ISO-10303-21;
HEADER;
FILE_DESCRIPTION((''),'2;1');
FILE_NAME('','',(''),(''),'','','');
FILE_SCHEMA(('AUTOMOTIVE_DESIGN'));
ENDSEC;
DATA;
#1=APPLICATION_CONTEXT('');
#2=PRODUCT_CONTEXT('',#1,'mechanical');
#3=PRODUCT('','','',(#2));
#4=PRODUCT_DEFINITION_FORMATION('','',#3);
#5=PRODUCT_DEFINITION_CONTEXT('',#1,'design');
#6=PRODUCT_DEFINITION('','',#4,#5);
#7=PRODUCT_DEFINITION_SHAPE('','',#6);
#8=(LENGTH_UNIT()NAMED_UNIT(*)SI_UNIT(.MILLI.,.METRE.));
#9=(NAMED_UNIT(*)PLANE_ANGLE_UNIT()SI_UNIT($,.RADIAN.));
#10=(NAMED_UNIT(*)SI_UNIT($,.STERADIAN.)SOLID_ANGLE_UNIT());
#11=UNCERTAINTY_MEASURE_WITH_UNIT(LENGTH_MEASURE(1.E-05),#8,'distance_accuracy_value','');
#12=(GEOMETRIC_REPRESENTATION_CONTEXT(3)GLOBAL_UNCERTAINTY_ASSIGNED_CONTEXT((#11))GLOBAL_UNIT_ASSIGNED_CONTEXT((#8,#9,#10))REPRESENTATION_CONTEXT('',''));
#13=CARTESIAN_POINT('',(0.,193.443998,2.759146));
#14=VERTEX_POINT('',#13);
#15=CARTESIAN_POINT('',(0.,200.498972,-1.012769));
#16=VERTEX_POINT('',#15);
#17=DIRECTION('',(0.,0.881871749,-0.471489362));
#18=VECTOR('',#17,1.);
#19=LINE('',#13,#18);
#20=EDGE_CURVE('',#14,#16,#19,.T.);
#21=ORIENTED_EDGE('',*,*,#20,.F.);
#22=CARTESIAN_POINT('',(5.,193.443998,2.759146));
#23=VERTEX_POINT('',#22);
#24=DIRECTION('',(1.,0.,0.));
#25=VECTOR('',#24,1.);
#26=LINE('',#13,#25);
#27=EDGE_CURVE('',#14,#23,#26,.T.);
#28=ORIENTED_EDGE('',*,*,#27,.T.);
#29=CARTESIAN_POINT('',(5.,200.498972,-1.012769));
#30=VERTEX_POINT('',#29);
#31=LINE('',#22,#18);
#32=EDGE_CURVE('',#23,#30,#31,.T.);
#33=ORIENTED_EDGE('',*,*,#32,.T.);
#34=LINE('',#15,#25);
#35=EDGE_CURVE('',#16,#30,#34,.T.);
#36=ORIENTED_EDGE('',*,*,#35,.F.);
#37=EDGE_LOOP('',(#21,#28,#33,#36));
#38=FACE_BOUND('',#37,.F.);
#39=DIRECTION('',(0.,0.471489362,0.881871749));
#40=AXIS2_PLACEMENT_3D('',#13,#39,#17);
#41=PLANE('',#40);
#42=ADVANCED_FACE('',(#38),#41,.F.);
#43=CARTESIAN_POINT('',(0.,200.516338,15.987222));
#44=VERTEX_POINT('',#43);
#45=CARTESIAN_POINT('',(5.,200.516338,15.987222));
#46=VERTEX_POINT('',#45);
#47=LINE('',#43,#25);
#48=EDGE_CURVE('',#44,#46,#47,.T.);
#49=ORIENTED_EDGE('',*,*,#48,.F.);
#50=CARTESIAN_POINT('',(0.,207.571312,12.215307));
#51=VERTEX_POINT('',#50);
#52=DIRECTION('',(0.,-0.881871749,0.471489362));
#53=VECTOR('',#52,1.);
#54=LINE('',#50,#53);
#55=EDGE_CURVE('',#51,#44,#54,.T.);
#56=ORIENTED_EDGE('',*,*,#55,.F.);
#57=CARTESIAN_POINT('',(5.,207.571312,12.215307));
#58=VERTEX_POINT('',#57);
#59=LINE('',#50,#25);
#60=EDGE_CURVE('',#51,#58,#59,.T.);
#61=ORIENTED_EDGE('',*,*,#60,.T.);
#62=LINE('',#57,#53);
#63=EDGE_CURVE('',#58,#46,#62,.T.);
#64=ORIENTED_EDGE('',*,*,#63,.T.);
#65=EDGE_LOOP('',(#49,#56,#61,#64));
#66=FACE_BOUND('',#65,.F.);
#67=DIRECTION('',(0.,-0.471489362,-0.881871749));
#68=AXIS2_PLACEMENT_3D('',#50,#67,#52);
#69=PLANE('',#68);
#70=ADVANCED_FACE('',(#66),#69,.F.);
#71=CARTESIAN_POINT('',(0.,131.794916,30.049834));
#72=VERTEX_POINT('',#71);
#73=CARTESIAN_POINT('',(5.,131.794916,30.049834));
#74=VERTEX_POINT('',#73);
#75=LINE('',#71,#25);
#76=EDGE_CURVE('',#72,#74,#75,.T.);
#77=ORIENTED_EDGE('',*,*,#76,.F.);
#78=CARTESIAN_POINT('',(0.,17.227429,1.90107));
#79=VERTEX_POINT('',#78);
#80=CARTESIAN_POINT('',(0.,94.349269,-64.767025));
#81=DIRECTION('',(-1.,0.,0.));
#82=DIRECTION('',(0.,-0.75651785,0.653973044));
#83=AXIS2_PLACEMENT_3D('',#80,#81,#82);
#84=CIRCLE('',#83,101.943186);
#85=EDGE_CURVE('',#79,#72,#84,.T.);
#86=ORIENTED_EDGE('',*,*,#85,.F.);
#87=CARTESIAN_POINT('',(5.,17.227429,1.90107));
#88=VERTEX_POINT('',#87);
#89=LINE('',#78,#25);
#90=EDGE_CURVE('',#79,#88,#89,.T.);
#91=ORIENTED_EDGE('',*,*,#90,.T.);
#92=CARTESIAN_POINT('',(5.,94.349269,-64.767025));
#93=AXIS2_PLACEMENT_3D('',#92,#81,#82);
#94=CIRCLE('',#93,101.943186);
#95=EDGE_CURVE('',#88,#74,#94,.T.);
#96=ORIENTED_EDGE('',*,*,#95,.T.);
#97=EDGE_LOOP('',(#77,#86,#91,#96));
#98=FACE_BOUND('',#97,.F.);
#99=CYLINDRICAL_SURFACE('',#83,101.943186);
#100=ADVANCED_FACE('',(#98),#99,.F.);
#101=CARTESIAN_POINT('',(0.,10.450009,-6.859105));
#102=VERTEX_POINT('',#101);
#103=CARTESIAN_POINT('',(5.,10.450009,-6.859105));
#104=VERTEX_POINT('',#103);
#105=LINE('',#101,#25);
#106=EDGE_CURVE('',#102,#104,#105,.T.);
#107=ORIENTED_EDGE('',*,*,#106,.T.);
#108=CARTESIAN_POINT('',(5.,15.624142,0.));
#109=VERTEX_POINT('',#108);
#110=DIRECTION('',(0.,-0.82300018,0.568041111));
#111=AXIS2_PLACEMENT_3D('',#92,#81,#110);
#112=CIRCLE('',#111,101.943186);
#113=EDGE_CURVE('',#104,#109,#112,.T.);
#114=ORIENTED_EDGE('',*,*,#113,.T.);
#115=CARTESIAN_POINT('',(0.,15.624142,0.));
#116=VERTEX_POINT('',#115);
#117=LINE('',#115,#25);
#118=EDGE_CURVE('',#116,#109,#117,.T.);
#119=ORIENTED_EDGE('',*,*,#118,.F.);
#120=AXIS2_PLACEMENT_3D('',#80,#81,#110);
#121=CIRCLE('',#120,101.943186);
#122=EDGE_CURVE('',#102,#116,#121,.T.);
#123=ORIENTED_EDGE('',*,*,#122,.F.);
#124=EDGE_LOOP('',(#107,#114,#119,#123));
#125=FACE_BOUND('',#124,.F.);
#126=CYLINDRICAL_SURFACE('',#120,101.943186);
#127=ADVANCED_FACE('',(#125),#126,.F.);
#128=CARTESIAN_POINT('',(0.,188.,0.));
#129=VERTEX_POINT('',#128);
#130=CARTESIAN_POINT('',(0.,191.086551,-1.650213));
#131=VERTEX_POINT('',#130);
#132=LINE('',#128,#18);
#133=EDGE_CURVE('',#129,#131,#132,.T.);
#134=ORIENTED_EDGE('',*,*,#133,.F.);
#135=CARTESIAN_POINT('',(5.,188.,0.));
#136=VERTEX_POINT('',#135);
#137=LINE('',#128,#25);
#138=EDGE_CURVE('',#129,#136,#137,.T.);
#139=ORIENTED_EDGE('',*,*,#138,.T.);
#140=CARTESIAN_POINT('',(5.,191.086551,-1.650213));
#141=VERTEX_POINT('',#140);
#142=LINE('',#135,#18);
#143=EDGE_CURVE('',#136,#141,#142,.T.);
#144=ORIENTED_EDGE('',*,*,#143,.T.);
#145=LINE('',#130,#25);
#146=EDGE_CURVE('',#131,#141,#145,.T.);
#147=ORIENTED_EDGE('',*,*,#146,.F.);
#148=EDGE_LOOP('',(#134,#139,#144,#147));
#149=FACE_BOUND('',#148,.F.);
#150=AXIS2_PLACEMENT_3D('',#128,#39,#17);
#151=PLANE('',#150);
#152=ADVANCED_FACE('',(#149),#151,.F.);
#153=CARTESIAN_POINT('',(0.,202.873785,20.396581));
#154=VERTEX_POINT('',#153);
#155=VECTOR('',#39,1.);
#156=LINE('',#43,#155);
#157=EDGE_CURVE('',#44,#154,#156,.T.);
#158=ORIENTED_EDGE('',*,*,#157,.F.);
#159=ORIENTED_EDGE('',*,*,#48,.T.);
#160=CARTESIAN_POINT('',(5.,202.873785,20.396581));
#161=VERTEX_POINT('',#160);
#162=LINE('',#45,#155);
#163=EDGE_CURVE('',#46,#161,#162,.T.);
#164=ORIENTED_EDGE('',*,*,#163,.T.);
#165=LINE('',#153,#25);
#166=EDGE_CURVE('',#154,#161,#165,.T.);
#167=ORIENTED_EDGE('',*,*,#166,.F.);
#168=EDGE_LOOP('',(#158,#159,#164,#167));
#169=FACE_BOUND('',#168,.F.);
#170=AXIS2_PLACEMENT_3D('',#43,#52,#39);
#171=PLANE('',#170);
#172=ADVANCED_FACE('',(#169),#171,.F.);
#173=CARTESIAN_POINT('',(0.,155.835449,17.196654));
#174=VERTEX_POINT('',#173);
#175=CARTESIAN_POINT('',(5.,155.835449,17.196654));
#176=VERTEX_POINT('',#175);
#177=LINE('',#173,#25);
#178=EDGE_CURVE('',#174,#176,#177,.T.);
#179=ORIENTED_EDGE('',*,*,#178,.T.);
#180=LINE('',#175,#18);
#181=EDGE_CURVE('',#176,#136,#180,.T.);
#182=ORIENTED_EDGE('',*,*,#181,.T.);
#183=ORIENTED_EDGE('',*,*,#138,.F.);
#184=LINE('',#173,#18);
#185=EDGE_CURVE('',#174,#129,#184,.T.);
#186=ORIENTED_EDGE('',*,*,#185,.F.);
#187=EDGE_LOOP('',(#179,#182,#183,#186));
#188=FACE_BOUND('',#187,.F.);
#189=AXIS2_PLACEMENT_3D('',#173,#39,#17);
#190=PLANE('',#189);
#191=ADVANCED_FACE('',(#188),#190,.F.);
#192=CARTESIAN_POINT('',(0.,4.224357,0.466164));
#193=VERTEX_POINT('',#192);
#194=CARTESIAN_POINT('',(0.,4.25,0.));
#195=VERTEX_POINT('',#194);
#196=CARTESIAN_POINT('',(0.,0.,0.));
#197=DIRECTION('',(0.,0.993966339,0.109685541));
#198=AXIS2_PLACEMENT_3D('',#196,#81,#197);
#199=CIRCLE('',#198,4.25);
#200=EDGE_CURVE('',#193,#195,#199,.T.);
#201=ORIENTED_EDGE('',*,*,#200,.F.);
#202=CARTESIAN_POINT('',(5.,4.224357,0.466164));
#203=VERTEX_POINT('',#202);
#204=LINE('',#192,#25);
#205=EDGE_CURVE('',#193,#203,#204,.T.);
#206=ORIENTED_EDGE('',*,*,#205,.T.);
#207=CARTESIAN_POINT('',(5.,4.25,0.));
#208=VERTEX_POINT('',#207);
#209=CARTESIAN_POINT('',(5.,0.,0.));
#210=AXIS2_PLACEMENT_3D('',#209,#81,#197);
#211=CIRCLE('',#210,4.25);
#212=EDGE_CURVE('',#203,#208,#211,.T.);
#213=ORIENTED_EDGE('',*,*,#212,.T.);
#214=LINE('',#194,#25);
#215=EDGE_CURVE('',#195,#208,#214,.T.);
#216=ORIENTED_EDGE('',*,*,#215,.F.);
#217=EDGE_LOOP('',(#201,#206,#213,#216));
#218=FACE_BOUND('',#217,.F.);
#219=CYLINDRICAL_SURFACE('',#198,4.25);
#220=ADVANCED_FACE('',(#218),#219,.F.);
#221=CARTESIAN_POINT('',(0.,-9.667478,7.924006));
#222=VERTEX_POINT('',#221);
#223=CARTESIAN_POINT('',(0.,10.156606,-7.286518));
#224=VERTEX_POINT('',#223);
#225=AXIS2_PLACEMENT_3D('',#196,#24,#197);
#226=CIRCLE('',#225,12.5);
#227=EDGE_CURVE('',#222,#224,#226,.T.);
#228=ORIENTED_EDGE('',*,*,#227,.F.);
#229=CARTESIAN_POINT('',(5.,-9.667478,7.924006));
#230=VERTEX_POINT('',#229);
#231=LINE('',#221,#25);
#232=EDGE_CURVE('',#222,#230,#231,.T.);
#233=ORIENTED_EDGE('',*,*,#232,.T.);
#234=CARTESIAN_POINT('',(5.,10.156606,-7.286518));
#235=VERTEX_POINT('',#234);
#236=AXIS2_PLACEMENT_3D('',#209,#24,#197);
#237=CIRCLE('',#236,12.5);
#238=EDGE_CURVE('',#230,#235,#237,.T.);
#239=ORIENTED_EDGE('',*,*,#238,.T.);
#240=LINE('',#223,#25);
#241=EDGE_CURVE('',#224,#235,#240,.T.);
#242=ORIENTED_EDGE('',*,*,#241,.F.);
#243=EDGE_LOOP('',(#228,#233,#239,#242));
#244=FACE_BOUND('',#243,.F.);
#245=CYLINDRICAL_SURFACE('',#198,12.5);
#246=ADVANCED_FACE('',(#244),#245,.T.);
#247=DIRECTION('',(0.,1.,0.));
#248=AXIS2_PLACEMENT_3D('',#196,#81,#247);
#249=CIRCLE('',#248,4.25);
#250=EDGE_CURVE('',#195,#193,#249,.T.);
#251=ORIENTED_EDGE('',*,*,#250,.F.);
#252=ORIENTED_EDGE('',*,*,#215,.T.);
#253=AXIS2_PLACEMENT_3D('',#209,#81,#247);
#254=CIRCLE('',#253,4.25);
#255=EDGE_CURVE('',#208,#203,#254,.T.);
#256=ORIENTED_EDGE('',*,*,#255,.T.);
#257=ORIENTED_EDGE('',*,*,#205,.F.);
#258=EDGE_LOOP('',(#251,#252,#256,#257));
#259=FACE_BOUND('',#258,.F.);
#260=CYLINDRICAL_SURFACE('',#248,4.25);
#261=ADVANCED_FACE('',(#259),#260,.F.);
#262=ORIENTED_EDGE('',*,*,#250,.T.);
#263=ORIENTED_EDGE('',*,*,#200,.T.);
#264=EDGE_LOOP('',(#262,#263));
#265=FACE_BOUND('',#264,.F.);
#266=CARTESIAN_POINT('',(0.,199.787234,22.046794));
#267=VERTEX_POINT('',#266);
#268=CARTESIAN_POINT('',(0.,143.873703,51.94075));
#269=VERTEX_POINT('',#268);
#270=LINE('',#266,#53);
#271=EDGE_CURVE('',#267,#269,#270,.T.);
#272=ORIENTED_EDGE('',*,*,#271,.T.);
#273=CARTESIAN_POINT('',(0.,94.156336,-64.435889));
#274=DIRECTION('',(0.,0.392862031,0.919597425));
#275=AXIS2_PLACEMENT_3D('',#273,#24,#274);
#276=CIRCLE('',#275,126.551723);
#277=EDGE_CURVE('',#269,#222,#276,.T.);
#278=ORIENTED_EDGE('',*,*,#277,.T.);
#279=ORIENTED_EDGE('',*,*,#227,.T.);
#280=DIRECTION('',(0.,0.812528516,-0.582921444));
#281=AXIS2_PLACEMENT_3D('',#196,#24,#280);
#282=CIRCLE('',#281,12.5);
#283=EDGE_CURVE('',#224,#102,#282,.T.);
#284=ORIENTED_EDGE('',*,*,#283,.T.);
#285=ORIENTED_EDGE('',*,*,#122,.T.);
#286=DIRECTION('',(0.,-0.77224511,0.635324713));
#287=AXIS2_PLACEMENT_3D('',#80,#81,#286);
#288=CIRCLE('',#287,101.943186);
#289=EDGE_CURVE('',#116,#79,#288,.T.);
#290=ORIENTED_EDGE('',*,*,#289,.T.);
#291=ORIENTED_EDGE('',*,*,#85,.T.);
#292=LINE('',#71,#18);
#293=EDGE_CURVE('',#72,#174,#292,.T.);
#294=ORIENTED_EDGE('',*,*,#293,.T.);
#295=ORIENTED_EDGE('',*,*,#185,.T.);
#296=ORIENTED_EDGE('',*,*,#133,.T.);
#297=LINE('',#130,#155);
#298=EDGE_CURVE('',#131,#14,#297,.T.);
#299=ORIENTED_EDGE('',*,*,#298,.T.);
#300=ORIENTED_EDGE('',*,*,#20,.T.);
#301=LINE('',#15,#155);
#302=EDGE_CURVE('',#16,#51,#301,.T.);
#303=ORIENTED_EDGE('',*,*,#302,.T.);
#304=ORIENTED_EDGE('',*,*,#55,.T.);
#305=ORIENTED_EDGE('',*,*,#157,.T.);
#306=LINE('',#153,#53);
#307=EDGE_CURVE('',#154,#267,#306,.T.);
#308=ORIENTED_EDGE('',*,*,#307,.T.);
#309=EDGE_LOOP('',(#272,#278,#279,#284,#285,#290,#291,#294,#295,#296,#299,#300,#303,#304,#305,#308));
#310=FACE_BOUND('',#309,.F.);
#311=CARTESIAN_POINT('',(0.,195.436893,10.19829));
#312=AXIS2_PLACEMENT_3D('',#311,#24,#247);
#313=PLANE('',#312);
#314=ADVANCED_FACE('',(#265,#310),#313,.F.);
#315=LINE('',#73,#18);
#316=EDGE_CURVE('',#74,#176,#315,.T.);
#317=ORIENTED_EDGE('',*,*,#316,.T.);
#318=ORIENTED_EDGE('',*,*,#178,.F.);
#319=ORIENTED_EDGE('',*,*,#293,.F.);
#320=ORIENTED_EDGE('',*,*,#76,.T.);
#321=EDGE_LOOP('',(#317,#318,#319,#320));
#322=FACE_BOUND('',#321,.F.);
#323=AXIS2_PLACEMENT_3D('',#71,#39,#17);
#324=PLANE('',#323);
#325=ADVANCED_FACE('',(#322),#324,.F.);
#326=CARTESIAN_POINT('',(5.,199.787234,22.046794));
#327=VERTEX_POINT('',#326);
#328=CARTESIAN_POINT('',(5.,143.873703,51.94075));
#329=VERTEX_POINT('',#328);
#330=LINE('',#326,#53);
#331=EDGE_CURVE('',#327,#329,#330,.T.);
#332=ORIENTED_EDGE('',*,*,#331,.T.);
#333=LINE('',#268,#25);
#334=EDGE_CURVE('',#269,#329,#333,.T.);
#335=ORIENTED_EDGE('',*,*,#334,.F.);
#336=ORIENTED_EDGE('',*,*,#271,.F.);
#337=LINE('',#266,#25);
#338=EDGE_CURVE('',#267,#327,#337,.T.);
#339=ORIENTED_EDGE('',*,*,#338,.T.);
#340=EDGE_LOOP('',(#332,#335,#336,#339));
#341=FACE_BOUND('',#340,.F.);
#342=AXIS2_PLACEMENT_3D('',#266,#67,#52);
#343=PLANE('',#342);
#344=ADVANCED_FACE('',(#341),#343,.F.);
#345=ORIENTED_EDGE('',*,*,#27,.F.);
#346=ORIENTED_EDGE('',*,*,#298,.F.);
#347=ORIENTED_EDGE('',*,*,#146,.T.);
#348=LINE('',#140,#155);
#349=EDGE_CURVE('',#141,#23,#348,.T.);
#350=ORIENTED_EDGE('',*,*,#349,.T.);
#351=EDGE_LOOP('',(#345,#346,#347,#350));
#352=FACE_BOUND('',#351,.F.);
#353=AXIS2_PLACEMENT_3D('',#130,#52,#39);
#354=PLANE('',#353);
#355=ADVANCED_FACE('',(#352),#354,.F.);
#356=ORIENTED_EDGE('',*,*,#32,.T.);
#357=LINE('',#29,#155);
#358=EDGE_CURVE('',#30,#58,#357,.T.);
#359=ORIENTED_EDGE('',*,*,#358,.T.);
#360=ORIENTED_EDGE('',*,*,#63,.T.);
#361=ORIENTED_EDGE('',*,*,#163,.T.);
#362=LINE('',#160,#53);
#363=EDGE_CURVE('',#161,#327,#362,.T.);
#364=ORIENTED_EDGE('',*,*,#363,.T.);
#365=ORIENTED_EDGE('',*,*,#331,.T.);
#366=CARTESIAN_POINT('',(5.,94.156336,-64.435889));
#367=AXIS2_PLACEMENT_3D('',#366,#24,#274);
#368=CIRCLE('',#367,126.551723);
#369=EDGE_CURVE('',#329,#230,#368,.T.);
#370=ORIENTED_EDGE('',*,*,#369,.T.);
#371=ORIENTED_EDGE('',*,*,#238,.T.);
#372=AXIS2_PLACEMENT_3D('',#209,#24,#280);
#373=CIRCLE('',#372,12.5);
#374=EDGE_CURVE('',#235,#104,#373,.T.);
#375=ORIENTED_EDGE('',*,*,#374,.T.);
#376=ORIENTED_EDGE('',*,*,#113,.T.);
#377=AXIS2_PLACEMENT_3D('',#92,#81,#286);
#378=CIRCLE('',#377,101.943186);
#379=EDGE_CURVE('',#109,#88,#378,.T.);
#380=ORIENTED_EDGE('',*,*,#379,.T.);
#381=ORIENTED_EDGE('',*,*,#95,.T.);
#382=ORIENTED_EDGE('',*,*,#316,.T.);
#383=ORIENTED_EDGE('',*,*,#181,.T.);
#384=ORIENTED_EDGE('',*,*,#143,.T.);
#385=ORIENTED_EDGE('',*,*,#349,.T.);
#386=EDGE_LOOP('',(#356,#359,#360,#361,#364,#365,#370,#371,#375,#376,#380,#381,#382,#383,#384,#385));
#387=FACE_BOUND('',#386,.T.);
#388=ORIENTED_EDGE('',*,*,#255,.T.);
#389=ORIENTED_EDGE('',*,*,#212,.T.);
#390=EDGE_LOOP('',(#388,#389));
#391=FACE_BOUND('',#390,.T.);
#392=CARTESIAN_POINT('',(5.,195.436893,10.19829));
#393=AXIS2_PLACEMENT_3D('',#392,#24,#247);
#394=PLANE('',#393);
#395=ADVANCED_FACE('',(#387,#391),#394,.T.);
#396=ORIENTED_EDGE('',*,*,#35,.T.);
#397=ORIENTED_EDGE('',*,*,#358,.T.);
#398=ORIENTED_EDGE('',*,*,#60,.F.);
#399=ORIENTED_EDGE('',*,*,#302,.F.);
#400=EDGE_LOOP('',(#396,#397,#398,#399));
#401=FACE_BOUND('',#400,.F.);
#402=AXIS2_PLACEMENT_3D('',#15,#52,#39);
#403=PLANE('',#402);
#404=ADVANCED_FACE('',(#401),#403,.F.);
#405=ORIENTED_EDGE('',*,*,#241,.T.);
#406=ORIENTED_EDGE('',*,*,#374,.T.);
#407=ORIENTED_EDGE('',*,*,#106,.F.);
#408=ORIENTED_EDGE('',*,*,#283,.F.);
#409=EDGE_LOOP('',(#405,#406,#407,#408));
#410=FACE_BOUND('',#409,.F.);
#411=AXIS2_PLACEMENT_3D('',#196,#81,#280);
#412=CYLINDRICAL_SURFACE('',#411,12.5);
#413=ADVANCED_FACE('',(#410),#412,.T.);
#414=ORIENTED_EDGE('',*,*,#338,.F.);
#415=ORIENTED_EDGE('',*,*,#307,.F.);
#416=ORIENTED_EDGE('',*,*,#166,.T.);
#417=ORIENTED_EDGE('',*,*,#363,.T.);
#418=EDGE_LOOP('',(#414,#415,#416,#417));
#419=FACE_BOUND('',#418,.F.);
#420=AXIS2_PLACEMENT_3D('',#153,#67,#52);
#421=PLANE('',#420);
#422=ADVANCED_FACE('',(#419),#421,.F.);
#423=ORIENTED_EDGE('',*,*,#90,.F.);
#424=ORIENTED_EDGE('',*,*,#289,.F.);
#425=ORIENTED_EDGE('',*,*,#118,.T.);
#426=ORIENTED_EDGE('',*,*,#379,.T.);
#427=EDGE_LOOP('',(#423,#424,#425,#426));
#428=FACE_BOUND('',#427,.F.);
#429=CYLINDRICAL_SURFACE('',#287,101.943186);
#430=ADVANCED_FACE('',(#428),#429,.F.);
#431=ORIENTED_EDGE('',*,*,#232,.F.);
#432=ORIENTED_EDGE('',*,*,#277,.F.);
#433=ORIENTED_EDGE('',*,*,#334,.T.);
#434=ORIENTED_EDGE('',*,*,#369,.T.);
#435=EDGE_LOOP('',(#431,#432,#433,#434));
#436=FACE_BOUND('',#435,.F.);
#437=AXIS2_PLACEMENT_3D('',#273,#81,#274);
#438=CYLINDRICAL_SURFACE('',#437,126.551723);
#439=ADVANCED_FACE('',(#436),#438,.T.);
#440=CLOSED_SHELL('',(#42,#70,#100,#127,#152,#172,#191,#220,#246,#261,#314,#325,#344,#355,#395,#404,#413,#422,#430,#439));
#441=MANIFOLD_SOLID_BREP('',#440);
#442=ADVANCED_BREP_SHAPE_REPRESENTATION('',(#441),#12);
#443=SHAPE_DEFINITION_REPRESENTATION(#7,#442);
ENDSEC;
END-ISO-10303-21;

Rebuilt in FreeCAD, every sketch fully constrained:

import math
import FreeCAD as App
import Part
import Sketcher

V = App.Vector

doc = App.newDocument("Part")
body = doc.addObject("PartDesign::Body", "Body")

# Sketch on YZ plane
sketch1 = doc.addObject("Sketcher::SketchObject", "Sketch")
body.addObject(sketch1)
sketch1.AttachmentSupport = (doc.YZ_Plane, [""])
sketch1.MapMode = "FlatFace"
sketch1.addGeometry([
    Part.LineSegment(V(193.443998, 2.759146, 0), V(200.498972, -1.012769, 0)),  # 0
    Part.LineSegment(V(200.498972, -1.012769, 0), V(207.571312, 12.215307, 0)),  # 1
    Part.LineSegment(V(207.571312, 12.215307, 0), V(200.516338, 15.987222, 0)),  # 2
    Part.LineSegment(V(200.516338, 15.987222, 0), V(202.873785, 20.396581, 0)),  # 3
    Part.LineSegment(V(202.873785, 20.396581, 0), V(199.787234, 22.046794, 0)),  # 4
    Part.LineSegment(V(199.787234, 22.046794, 0), V(143.873703, 51.94075, 0)),  # 5
    Part.ArcOfCircle(Part.Circle(V(94.156336, -64.435889, 0), V(0, 0, 1), 126.551723), math.radians(66.867299), math.radians(145.125473)),  # 6
    Part.ArcOfCircle(Part.Circle(V(0, 0, 0), V(0, 0, 1), 12.5), math.radians(140.660034), math.radians(324.343715)),  # 7
    Part.ArcOfCircle(Part.Circle(V(0, 0, 0), V(0, 0, 1), 12.5), math.radians(-35.656285), math.radians(-33.279818)),  # 8
    Part.ArcOfCircle(Part.Circle(V(94.349269, -64.767025, 0), V(0, 0, 1), 101.943186), math.radians(140.555928), math.radians(145.386261)),  # 9
    Part.ArcOfCircle(Part.Circle(V(94.349269, -64.767025, 0), V(0, 0, 1), 101.943186), math.radians(139.158173), math.radians(140.555928)),  # 10
    Part.ArcOfCircle(Part.Circle(V(94.349269, -64.767025, 0), V(0, 0, 1), 101.943186), math.radians(68.449646), math.radians(139.158173)),  # 11
    Part.LineSegment(V(131.794916, 30.049834, 0), V(155.835449, 17.196654, 0)),  # 12
    Part.LineSegment(V(155.835449, 17.196654, 0), V(188, 0, 0)),  # 13
    Part.LineSegment(V(188, 0, 0), V(191.086551, -1.650213, 0)),  # 14
    Part.LineSegment(V(191.086551, -1.650213, 0), V(193.443998, 2.759146, 0)),  # 15
    Part.ArcOfCircle(Part.Circle(V(0, 0, 0), V(0, 0, 1), 4.25), math.radians(6.297189), math.radians(360)),  # 16
    Part.ArcOfCircle(Part.Circle(V(0, 0, 0), V(0, 0, 1), 4.25), math.radians(0), math.radians(6.297189)),  # 17
], False)
sketch1.addConstraint([
    Sketcher.Constraint("Coincident", 0, 2, 1, 1),
    Sketcher.Constraint("Coincident", 1, 2, 2, 1),
    Sketcher.Constraint("Coincident", 2, 2, 3, 1),
    Sketcher.Constraint("Coincident", 3, 2, 4, 1),
    Sketcher.Constraint("Coincident", 4, 2, 5, 1),
    Sketcher.Constraint("Coincident", 5, 2, 6, 1),
    Sketcher.Constraint("Coincident", 6, 2, 7, 1),
    Sketcher.Constraint("Tangent", 7, 2, 8, 1),
    Sketcher.Constraint("Coincident", 8, 2, 9, 2),
    Sketcher.Constraint("Tangent", 9, 1, 10, 2),
    Sketcher.Constraint("Tangent", 10, 1, 11, 2),
    Sketcher.Constraint("Coincident", 11, 1, 12, 1),
    Sketcher.Constraint("Coincident", 12, 2, 13, 1),
    Sketcher.Constraint("Coincident", 13, 2, 14, 1),
    Sketcher.Constraint("Coincident", 14, 2, 15, 1),
    Sketcher.Constraint("Coincident", 15, 2, 0, 1),
    Sketcher.Constraint("Tangent", 16, 1, 17, 2),
    Sketcher.Constraint("Coincident", 17, 1, 16, 2),
    Sketcher.Constraint("Coincident", 7, 3, -1, 1),
    Sketcher.Constraint("Coincident", 16, 3, -1, 1),
    Sketcher.Constraint("Coincident", 11, 3, 9, 3),
    Sketcher.Constraint("Equal", 7, 8),
    Sketcher.Constraint("PointOnObject", 9, 1, -1),
    Sketcher.Constraint("PointOnObject", 13, 2, -1),
    Sketcher.Constraint("PointOnObject", 17, 1, -1),
    Sketcher.Constraint("Perpendicular", 0, 1),
    Sketcher.Constraint("Perpendicular", 1, 2),
    Sketcher.Constraint("Perpendicular", 2, 3),
    Sketcher.Constraint("Perpendicular", 3, 4),
    Sketcher.Constraint("Parallel", 4, 5),
    Sketcher.Constraint("Parallel", 5, 12),
    Sketcher.Constraint("Parallel", 12, 13),
    Sketcher.Constraint("Parallel", 13, 14),
    Sketcher.Constraint("Perpendicular", 14, 15),
    Sketcher.Constraint("Equal", 0, 2),
    Sketcher.Constraint("Equal", 4, 14),
    Sketcher.Constraint("Equal", 3, 15),
    Sketcher.Constraint("Radius", 7, 12.5),
    Sketcher.Constraint("Radius", 16, 4.25),
    Sketcher.Constraint("Distance", 0, 8.0),
    Sketcher.Constraint("Distance", 1, 15.0),
    Sketcher.Constraint("Distance", 3, 5.0),
    Sketcher.Constraint("DistanceX", -1, 1, 13, 2, 188.0),
    Sketcher.Constraint("Distance", 4, 3.5),
    Sketcher.Constraint("Radius", 6, 126.551723),
    Sketcher.Constraint("Radius", 9, 101.943186),
    Sketcher.Constraint("DistanceX", 6, 3, 4, 2, 105.630899),
    Sketcher.Constraint("Distance", 13, 36.473048),
    Sketcher.Constraint("DistanceY", 6, 3, -1, 1, 64.435889),
    Sketcher.Constraint("DistanceX", -1, 1, 9, 3, 94.349269),
    Sketcher.Constraint("DistanceY", 0, 2, -1, 1, 1.012769),
    Sketcher.Constraint("DistanceY", 7, 2, -1, 1, 7.286518),
    Sketcher.Constraint("DistanceX", -1, 1, 8, 2, 10.450009),
    Sketcher.Constraint("DistanceX", -1, 1, 10, 1, 17.227429),
    Sketcher.Constraint("DistanceX", 16, 1, 8, 2, 6.225652),
])
pad1 = doc.addObject("PartDesign::Pad", "Pad")
body.addObject(pad1)
pad1.Profile = sketch1
pad1.Length = 5

doc.recompute()
